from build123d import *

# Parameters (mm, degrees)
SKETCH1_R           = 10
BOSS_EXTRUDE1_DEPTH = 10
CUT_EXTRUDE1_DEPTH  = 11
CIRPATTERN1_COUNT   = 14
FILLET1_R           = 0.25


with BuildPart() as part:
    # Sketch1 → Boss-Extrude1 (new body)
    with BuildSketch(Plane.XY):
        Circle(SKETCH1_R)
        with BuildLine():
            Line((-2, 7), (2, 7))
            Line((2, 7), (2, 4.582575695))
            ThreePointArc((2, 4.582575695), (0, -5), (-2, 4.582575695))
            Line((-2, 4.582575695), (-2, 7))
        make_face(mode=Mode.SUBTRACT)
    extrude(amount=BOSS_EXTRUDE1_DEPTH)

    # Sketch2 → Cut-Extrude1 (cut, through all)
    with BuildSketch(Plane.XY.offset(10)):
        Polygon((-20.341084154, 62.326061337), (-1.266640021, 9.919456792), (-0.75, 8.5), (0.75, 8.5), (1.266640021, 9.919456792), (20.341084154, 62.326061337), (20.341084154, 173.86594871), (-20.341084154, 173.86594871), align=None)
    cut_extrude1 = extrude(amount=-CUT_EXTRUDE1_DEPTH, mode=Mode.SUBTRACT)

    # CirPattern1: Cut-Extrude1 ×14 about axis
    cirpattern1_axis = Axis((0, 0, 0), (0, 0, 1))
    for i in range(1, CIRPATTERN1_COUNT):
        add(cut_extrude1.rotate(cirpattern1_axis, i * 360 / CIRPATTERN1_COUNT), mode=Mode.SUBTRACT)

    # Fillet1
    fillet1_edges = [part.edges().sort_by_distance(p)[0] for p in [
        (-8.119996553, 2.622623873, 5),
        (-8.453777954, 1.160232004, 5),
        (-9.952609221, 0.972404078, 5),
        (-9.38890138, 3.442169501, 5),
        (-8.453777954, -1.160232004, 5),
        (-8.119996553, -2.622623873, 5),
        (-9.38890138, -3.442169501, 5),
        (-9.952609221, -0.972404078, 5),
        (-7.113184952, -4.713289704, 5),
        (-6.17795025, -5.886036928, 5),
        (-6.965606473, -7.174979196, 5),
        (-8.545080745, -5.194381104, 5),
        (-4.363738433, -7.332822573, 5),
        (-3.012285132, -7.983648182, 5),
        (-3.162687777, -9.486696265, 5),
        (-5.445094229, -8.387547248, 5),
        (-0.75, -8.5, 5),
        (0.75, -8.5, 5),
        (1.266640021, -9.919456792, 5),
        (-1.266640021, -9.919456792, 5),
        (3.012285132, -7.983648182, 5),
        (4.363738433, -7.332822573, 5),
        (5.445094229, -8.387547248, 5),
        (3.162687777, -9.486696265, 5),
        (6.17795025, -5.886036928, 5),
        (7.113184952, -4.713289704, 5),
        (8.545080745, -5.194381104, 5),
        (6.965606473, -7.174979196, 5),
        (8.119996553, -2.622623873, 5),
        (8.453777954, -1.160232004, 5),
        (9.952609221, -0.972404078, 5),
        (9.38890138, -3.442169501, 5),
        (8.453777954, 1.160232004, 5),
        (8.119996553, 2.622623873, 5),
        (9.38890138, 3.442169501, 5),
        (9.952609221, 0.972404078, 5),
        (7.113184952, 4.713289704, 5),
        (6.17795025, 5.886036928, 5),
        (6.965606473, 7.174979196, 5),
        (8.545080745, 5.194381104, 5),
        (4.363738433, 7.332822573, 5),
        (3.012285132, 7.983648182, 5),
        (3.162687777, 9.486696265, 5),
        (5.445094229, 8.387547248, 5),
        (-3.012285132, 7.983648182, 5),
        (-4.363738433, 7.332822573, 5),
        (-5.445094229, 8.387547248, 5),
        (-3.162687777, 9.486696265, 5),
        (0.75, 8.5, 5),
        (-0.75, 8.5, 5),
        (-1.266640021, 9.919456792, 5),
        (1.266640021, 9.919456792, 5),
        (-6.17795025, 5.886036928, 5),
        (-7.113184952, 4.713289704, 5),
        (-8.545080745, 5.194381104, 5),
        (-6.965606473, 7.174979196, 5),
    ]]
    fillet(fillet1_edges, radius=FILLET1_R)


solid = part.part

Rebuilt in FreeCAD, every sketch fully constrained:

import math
import FreeCAD as App
import Part
import Sketcher
from FreeCAD import Vector
Q = App.Units.Quantity


def edges_at(feature, points):
    """Names of the edges that pass closest to the given points."""
    edges = feature.Shape.Edges
    near = lambda p: min(range(len(edges)), key=lambda i: edges[i].distToShape(Part.Vertex(*p))[0])
    return sorted({f"Edge{near(p) + 1}" for p in points})


def add_polygon(sketch, points):
    """Adds a closed chain of lines whose ends are joined by coincident constraints."""
    first, n = sketch.GeometryCount, len(points)
    for a, b in zip(points, points[1:] + points[:1]):
        sketch.addGeometry(Part.LineSegment(App.Vector(*a, 0), App.Vector(*b, 0)), False)
    for i in range(n):
        sketch.addConstraint(Sketcher.Constraint("Coincident", first + i, 2, first + (i + 1) % n, 1))

doc = App.newDocument("Part")
params = doc.addObject("Spreadsheet::Sheet", "Params")
for row, (alias, value) in enumerate([
    ("sketch1_diameter", "20 mm"),
    ("sketch1_radius", "5 mm"),
    ("sketch1_width", "4 mm"),
    ("pad1_length", "10 mm"),
    ("sketch2_width", "1.5 mm"),
    ("fillet_radius", "0.25 mm"),
], start=1):
    params.set(f"A{row}", alias)
    params.set(f"B{row}", "=" + value)
    params.setAlias(f"B{row}", alias)

body = doc.addObject("PartDesign::Body", "Body")

# Sketch on XY plane
sketch1 = doc.addObject("Sketcher::SketchObject", "Sketch")
body.addObject(sketch1)
sketch1.AttachmentSupport = (doc.XY_Plane, [""])
sketch1.MapMode = "FlatFace"
sketch1.addGeometry(Part.Circle(Vector(0, 0, 0), Vector(0, 0, 1), 10), False)
sketch1.addGeometry(Part.LineSegment(Vector(-2, 4.6, 0), Vector(-2, 7, 0)), False)
sketch1.addGeometry(Part.LineSegment(Vector(-2, 7, 0), Vector(2, 7, 0)), False)
sketch1.addGeometry(Part.LineSegment(Vector(2, 7, 0), Vector(2, 4.6, 0)), False)
sketch1.addGeometry(Part.ArcOfCircle(Part.Circle(Vector(0, 0, 0), Vector(0, 0, 1), 5), math.radians(114), math.radians(426)), False)
sketch1.addConstraint(Sketcher.Constraint("Coincident", 1, 2, 2, 1))
sketch1.addConstraint(Sketcher.Constraint("Coincident", 2, 2, 3, 1))
sketch1.addConstraint(Sketcher.Constraint("Coincident", 3, 2, 4, 2))
sketch1.addConstraint(Sketcher.Constraint("Coincident", 4, 1, 1, 1))
sketch1.addConstraint(Sketcher.Constraint("Vertical", 1))
sketch1.addConstraint(Sketcher.Constraint("Horizontal", 2))
sketch1.addConstraint(Sketcher.Constraint("Vertical", 3))
sketch1.addConstraint(Sketcher.Constraint("Coincident", 0, 3, -1, 1))
sketch1.addConstraint(Sketcher.Constraint("Coincident", 4, 3, -1, 1))
sketch1.addConstraint(Sketcher.Constraint("Horizontal", 3, 2, 4, 1))
sketch1.addConstraint(Sketcher.Constraint("Diameter", 0, 20.0))
sketch1.addConstraint(Sketcher.Constraint("Radius", 4, 5.0))
sketch1.addConstraint(Sketcher.Constraint("DistanceX", 2, 1, 2, 2, 4.0))
sketch1.addConstraint(Sketcher.Constraint("DistanceY", -1, 1, 1, 2, 7.0))
sketch1.setExpression("Constraints[10]", "Params.sketch1_diameter")
sketch1.setExpression("Constraints[11]", "Params.sketch1_radius")
sketch1.setExpression("Constraints[12]", "Params.sketch1_width")
pad1 = doc.addObject("PartDesign::Pad", "Pad")
body.addObject(pad1)
pad1.Profile = sketch1
pad1.setExpression("Length", "Params.pad1_length")

# Sketch on XY plane
sketch2 = doc.addObject("Sketcher::SketchObject", "Sketch001")
body.addObject(sketch2)
sketch2.AttachmentSupport = (doc.XY_Plane, [""])
sketch2.MapMode = "FlatFace"
sketch2.AttachmentOffset = App.Placement(Vector(0, 0, 10), App.Rotation())
add_polygon(sketch2, [(-20.3, 62.3), (-1.3, 9.9), (-0.8, 8.5), (0.8, 8.5), (1.3, 9.9), (20.3, 62.3), (20.3, 173.9), (-20.3, 173.9)])  # lines 0-7
sketch2.addConstraint(Sketcher.Constraint("Horizontal", 2))
sketch2.addConstraint(Sketcher.Constraint("Vertical", 5))
sketch2.addConstraint(Sketcher.Constraint("Horizontal", 6))
sketch2.addConstraint(Sketcher.Constraint("Vertical", 7))
sketch2.addConstraint(Sketcher.Constraint("Symmetric", 0, 2, 3, 2, -2))
sketch2.addConstraint(Sketcher.Constraint("Symmetric", 4, 2, 7, 2, -2))
sketch2.addConstraint(Sketcher.Constraint("Parallel", 0, 1))
sketch2.addConstraint(Sketcher.Constraint("Parallel", 3, 4))
sketch2.addConstraint(Sketcher.Constraint("Angle", 0, Q("-70 deg")))
sketch2.addConstraint(Sketcher.Constraint("DistanceX", 2, 1, 2, 2, 1.5))
sketch2.addConstraint(Sketcher.Constraint("DistanceY", -1, 1, 1, 2, 8.5))
sketch2.addConstraint(Sketcher.Constraint("DistanceX", 6, 2, 6, 1, 40.682168))
sketch2.addConstraint(Sketcher.Constraint("DistanceY", 5, 1, 5, 2, 111.539887))
sketch2.addConstraint(Sketcher.Constraint("DistanceX", 0, 2, -1, 1, 1.26664))
sketch2.setExpression("Constraints[17]", "Params.sketch2_width")
pocket1 = doc.addObject("PartDesign::Pocket", "Pocket")
body.addObject(pocket1)
pocket1.Profile = sketch2
pocket1.Type = "ThroughAll"
doc.recompute()

polarpattern = doc.addObject("PartDesign::PolarPattern", "PolarPattern")
body.addObject(polarpattern)
polarpattern.Originals = [pocket1]
polarpattern.Axis = (doc.Z_Axis, [""])
polarpattern.Angle = 360
polarpattern.Occurrences = 14
body.Tip = polarpattern
doc.recompute()

fillet = doc.addObject("PartDesign::Fillet", "Fillet")
body.addObject(fillet)
fillet.Base = (polarpattern, edges_at(polarpattern, [
    (-8.12, 2.623, 5),
    (-8.454, 1.16, 5),
    (-9.953, 0.972, 5),
    (-9.389, 3.442, 5),
    (-8.454, -1.16, 5),
    (-8.12, -2.623, 5),
    (-9.389, -3.442, 5),
    (-9.953, -0.972, 5),
    (-7.113, -4.713, 5),
    (-6.178, -5.886, 5),
    (-6.966, -7.175, 5),
    (-8.545, -5.194, 5),
    (-4.364, -7.333, 5),
    (-3.012, -7.984, 5),
    (-3.163, -9.487, 5),
    (-5.445, -8.388, 5),
    (-0.75, -8.5, 5),
    (0.75, -8.5, 5),
    (1.267, -9.919, 5),
    (-1.267, -9.919, 5),
    (3.012, -7.984, 5),
    (4.364, -7.333, 5),
    (5.445, -8.388, 5),
    (3.163, -9.487, 5),
    (6.178, -5.886, 5),
    (7.113, -4.713, 5),
    (8.545, -5.194, 5),
    (6.966, -7.175, 5),
    (8.12, -2.623, 5),
    (8.454, -1.16, 5),
    (9.953, -0.972, 5),
    (9.389, -3.442, 5),
    (8.454, 1.16, 5),
    (8.12, 2.623, 5),
    (9.389, 3.442, 5),
    (9.953, 0.972, 5),
    (7.113, 4.713, 5),
    (6.178, 5.886, 5),
    (6.966, 7.175, 5),
    (8.545, 5.194, 5),
    (4.364, 7.333, 5),
    (3.012, 7.984, 5),
    (3.163, 9.487, 5),
    (5.445, 8.388, 5),
    (-3.012, 7.984, 5),
    (-4.364, 7.333, 5),
    (-5.445, 8.388, 5),
    (-3.163, 9.487, 5),
    (0.75, 8.5, 5),
    (-0.75, 8.5, 5),
    (-1.267, 9.919, 5),
    (1.267, 9.919, 5),
    (-6.178, 5.886, 5),
    (-7.113, 4.713, 5),
    (-8.545, 5.194, 5),
    (-6.966, 7.175, 5),
]))
fillet.setExpression("Radius", "Params.fillet_radius")

doc.recompute()
